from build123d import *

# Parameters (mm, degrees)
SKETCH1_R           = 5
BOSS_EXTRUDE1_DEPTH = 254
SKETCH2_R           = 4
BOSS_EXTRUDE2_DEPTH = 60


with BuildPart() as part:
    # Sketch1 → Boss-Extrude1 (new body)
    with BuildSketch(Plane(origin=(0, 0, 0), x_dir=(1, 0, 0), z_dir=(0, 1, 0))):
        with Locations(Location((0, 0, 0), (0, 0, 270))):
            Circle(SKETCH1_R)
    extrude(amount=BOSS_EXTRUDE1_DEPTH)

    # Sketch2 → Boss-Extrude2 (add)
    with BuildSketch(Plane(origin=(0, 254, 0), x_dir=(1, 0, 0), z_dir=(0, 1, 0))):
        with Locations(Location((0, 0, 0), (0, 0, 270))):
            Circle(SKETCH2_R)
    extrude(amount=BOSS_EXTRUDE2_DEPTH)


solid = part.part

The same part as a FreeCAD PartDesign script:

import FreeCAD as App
import Part
import Sketcher
from FreeCAD import Vector

doc = App.newDocument("Part")
body = doc.addObject("PartDesign::Body", "Body")

sketch1 = body.newObject("Sketcher::SketchObject", "Sketch")
sketch1.AttachmentSupport = (doc.getObject("XZ_Plane"), [""])
sketch1.MapMode = "FlatFace"
sketch1.addGeometry(Part.Circle(Vector(0, 0, 0), Vector(0, 0, 1), 5), False)
sketch1.addConstraint([
    Sketcher.Constraint("Coincident", 0, 3, -1, 1),
    Sketcher.Constraint("Diameter", 0, 10.0),
])
pad1 = body.newObject("PartDesign::Pad", "Pad")
pad1.Profile = sketch1
pad1.Length = 254
pad1.Reversed = True

sketch2 = body.newObject("Sketcher::SketchObject", "Sketch001")
sketch2.AttachmentSupport = (doc.getObject("XZ_Plane"), [""])
sketch2.MapMode = "FlatFace"
sketch2.AttachmentOffset = App.Placement(Vector(0, 0, -254), App.Rotation())
sketch2.addGeometry(Part.Circle(Vector(0, 0, 0), Vector(0, 0, 1), 4), False)
sketch2.addConstraint([
    Sketcher.Constraint("Coincident", 0, 3, -1, 1),
    Sketcher.Constraint("Diameter", 0, 8.0),
])
pad2 = body.newObject("PartDesign::Pad", "Pad001")
pad2.Profile = sketch2
pad2.Length = 60
pad2.Reversed = True

doc.recompute()
